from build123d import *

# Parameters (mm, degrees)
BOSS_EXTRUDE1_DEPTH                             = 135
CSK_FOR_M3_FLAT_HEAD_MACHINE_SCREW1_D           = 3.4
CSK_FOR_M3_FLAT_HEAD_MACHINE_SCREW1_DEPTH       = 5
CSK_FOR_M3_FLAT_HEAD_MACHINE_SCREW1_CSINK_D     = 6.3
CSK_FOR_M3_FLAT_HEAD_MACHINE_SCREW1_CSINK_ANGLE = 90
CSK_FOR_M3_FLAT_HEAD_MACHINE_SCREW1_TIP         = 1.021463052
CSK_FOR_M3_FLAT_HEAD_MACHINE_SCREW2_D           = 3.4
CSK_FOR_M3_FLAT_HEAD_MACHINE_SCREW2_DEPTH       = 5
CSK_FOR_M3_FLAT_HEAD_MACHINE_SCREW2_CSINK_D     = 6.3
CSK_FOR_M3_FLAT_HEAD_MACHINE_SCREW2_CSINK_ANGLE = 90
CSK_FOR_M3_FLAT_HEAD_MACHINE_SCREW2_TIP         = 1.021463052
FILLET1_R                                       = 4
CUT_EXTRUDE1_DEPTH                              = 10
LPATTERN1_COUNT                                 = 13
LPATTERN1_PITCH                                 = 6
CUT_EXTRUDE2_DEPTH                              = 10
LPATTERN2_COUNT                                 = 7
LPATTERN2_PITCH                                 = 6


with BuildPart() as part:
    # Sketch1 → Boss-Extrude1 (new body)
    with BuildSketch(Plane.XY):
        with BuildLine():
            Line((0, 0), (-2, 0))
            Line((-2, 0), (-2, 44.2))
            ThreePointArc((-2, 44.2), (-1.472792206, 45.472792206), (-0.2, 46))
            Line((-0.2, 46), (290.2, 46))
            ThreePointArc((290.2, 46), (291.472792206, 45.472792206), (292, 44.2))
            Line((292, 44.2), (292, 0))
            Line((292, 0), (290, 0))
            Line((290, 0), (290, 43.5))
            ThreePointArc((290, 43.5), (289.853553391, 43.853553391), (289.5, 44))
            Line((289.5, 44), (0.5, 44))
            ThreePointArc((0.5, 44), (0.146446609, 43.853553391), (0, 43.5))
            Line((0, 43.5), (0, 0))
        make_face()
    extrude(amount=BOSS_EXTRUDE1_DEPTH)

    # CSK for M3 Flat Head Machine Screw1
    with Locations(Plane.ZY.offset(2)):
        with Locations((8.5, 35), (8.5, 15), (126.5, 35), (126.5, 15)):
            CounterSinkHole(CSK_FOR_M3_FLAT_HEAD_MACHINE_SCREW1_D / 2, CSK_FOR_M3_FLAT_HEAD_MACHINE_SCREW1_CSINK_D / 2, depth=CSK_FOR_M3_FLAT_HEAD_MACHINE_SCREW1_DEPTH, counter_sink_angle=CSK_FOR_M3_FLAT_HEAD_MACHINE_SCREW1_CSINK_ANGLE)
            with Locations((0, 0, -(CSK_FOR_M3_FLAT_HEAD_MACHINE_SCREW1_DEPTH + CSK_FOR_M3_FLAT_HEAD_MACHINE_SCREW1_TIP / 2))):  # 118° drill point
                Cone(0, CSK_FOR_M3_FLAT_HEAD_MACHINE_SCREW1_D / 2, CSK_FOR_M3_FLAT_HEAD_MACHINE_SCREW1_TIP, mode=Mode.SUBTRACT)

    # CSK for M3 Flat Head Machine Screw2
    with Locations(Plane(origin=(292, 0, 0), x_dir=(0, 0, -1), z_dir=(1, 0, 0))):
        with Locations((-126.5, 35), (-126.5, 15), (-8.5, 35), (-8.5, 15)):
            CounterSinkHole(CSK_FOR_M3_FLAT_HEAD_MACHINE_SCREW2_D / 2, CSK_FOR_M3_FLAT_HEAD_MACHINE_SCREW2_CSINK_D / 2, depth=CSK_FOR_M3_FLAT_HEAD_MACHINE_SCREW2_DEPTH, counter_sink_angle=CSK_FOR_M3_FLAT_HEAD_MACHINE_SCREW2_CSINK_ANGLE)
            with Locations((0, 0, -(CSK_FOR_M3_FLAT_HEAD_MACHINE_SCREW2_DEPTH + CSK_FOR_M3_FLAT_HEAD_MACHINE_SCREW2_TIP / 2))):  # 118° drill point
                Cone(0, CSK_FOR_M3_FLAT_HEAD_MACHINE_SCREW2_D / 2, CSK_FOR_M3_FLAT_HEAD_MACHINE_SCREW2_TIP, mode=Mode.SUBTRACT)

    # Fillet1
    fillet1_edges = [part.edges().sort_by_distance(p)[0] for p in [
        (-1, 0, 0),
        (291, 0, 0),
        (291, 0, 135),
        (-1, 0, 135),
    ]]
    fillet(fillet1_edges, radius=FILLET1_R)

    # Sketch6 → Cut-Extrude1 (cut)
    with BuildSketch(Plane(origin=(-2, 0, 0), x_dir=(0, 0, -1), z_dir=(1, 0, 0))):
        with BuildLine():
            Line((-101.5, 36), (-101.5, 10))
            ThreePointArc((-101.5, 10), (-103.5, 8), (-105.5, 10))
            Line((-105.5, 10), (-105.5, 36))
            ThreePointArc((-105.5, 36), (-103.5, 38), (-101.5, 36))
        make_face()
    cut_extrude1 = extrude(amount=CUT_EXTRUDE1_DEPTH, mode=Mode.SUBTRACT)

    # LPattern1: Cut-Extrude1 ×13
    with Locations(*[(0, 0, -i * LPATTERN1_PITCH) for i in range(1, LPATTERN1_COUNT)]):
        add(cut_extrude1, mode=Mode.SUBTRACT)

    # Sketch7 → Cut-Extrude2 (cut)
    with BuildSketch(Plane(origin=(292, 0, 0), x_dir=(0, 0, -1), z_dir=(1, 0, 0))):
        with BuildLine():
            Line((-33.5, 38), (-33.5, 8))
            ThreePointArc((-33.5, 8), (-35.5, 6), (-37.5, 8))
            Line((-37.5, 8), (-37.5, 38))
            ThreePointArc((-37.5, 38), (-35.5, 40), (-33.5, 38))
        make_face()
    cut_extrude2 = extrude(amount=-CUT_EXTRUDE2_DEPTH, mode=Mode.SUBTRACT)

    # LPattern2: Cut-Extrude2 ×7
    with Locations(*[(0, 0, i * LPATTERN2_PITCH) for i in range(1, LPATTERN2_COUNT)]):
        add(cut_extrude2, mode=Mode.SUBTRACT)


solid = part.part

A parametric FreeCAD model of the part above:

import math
import FreeCAD as App
import Part
import Sketcher


def edges_at(feature, points):
    """Names of the edges that pass closest to the given points."""
    edges = feature.Shape.Edges
    near = lambda p: min(range(len(edges)), key=lambda i: edges[i].distToShape(Part.Vertex(*p))[0])
    return sorted({f"Edge{near(p) + 1}" for p in points})

doc = App.newDocument("Part")
body = doc.addObject("PartDesign::Body", "Body")

# Sketch on XY plane
sketch1 = body.newObject("Sketcher::SketchObject", "Sketch")
sketch1.AttachmentSupport = (doc.getObject("XY_Plane"), [""])
sketch1.MapMode = "FlatFace"
sketch1.addGeometry([
    Part.LineSegment(App.Vector(-2, 0, 0), App.Vector(0, 0, 0)),  # 0
    Part.LineSegment(App.Vector(0, 0, 0), App.Vector(0, 43.5, 0)),  # 1
    Part.ArcOfCircle(Part.Circle(App.Vector(0.5, 43.5, 0), App.Vector(0, 0, 1), 0.5), math.radians(90), math.radians(180)),  # 2
    Part.LineSegment(App.Vector(0.5, 44, 0), App.Vector(289.5, 44, 0)),  # 3
    Part.ArcOfCircle(Part.Circle(App.Vector(289.5, 43.5, 0), App.Vector(0, 0, 1), 0.5), math.radians(0), math.radians(90)),  # 4
    Part.LineSegment(App.Vector(290, 43.5, 0), App.Vector(290, 0, 0)),  # 5
    Part.LineSegment(App.Vector(290, 0, 0), App.Vector(292, 0, 0)),  # 6
    Part.LineSegment(App.Vector(292, 0, 0), App.Vector(292, 44.2, 0)),  # 7
    Part.ArcOfCircle(Part.Circle(App.Vector(290.2, 44.2, 0), App.Vector(0, 0, 1), 1.8), math.radians(0), math.radians(90)),  # 8
    Part.LineSegment(App.Vector(290.2, 46, 0), App.Vector(-0.2, 46, 0)),  # 9
    Part.ArcOfCircle(Part.Circle(App.Vector(-0.2, 44.2, 0), App.Vector(0, 0, 1), 1.8), math.radians(90), math.radians(180)),  # 10
    Part.LineSegment(App.Vector(-2, 44.2, 0), App.Vector(-2, 0, 0)),  # 11
], False)
sketch1.addConstraint([
    Sketcher.Constraint("Coincident", 0, 2, 1, 1),
    Sketcher.Constraint("Tangent", 1, 2, 2, 2),
    Sketcher.Constraint("Tangent", 2, 1, 3, 1),
    Sketcher.Constraint("Tangent", 3, 2, 4, 2),
    Sketcher.Constraint("Tangent", 4, 1, 5, 1),
    Sketcher.Constraint("Coincident", 5, 2, 6, 1),
    Sketcher.Constraint("Coincident", 6, 2, 7, 1),
    Sketcher.Constraint("Tangent", 7, 2, 8, 1),
    Sketcher.Constraint("Tangent", 8, 2, 9, 1),
    Sketcher.Constraint("Tangent", 9, 2, 10, 1),
    Sketcher.Constraint("Tangent", 10, 2, 11, 1),
    Sketcher.Constraint("Coincident", 11, 2, 0, 1),
    Sketcher.Constraint("Horizontal", 0),
    Sketcher.Constraint("Vertical", 1),
    Sketcher.Constraint("Horizontal", 3),
    Sketcher.Constraint("Vertical", 5),
    Sketcher.Constraint("Horizontal", 6),
    Sketcher.Constraint("Vertical", 7),
    Sketcher.Constraint("Horizontal", 9),
    Sketcher.Constraint("Vertical", 11),
    Sketcher.Constraint("Coincident", 0, 2, -1, 1),
    Sketcher.Constraint("Equal", 2, 4),
    Sketcher.Constraint("Equal", 8, 10),
    Sketcher.Constraint("PointOnObject", 5, 2, -1),
    Sketcher.Constraint("Equal", 0, 6),
    Sketcher.Constraint("Radius", 2, 0.5),
    Sketcher.Constraint("Radius", 8, 1.8),
    Sketcher.Constraint("DistanceX", 0, 1, 0, 2, 2.0),
    Sketcher.Constraint("DistanceX", 3, 1, 3, 2, 289.0),
    Sketcher.Constraint("DistanceY", 1, 1, 1, 2, 43.5),
    Sketcher.Constraint("DistanceY", 7, 1, 7, 2, 44.2),
])
pad1 = body.newObject("PartDesign::Pad", "Pad")
pad1.Profile = sketch1
pad1.Length = 135

# Sketch on YZ plane
sketch2 = body.newObject("Sketcher::SketchObject", "Sketch001")
sketch2.AttachmentSupport = (doc.getObject("YZ_Plane"), [""])
sketch2.MapMode = "FlatFace"
sketch2.AttachmentOffset = App.Placement(App.Vector(0, 0, -2), App.Rotation())
sketch2.addGeometry([
    Part.Circle(App.Vector(35, 8.5, 0), App.Vector(0, 0, 1), 1.7),
    Part.Circle(App.Vector(15, 8.5, 0), App.Vector(0, 0, 1), 1.7),
    Part.Circle(App.Vector(35, 126.5, 0), App.Vector(0, 0, 1), 1.7),
    Part.Circle(App.Vector(15, 126.5, 0), App.Vector(0, 0, 1), 1.7),
], False)
sketch2.addConstraint([
    Sketcher.Constraint("Equal", 0, 1),
    Sketcher.Constraint("Equal", 1, 2),
    Sketcher.Constraint("Equal", 2, 3),
    Sketcher.Constraint("Horizontal", 0, 3, 1, 3),
    Sketcher.Constraint("Horizontal", 2, 3, 3, 3),
    Sketcher.Constraint("Vertical", 0, 3, 2, 3),
    Sketcher.Constraint("Vertical", 1, 3, 3, 3),
    Sketcher.Constraint("Diameter", 0, 3.4),
    Sketcher.Constraint("DistanceX", -1, 1, 0, 3, 35.0),
    Sketcher.Constraint("DistanceX", -1, 1, 1, 3, 15.0),
    Sketcher.Constraint("DistanceY", 0, 3, 2, 3, 118.0),
    Sketcher.Constraint("DistanceY", -1, 1, 0, 3, 8.5),
])
doc.recompute()
hole = body.newObject("PartDesign::Hole", "Hole")
hole.Profile = sketch2
hole.ThreadType = "None"
hole.Diameter = 3.4
hole.DepthType = "Dimension"
hole.Depth = 5
hole.DrillPoint = "Angled"
hole.DrillPointAngle = 118
hole.HoleCutType = "Countersink"
hole.HoleCutDiameter = 6.3
hole.HoleCutCountersinkAngle = 90
hole.Reversed = True

# Sketch on YZ plane
sketch3 = body.newObject("Sketcher::SketchObject", "Sketch002")
sketch3.AttachmentSupport = (doc.getObject("YZ_Plane"), [""])
sketch3.MapMode = "FlatFace"
sketch3.AttachmentOffset = App.Placement(App.Vector(0, 0, 292), App.Rotation())
sketch3.addGeometry([
    Part.Circle(App.Vector(35, 126.5, 0), App.Vector(0, 0, 1), 1.7),
    Part.Circle(App.Vector(15, 126.5, 0), App.Vector(0, 0, 1), 1.7),
    Part.Circle(App.Vector(35, 8.5, 0), App.Vector(0, 0, 1), 1.7),
    Part.Circle(App.Vector(15, 8.5, 0), App.Vector(0, 0, 1), 1.7),
], False)
sketch3.addConstraint([
    Sketcher.Constraint("Equal", 0, 1),
    Sketcher.Constraint("Equal", 1, 2),
    Sketcher.Constraint("Equal", 2, 3),
    Sketcher.Constraint("Horizontal", 0, 3, 1, 3),
    Sketcher.Constraint("Horizontal", 2, 3, 3, 3),
    Sketcher.Constraint("Vertical", 0, 3, 2, 3),
    Sketcher.Constraint("Vertical", 1, 3, 3, 3),
    Sketcher.Constraint("Diameter", 0, 3.4),
    Sketcher.Constraint("DistanceX", -1, 1, 0, 3, 35.0),
    Sketcher.Constraint("DistanceX", -1, 1, 1, 3, 15.0),
    Sketcher.Constraint("DistanceY", 2, 3, 0, 3, 118.0),
    Sketcher.Constraint("DistanceY", -1, 1, 0, 3, 126.5),
])
doc.recompute()
hole2 = body.newObject("PartDesign::Hole", "Hole001")
hole2.Profile = sketch3
hole2.ThreadType = "None"
hole2.Diameter = 3.4
hole2.DepthType = "Dimension"
hole2.Depth = 5
hole2.DrillPoint = "Angled"
hole2.DrillPointAngle = 118
hole2.HoleCutType = "Countersink"
hole2.HoleCutDiameter = 6.3
hole2.HoleCutCountersinkAngle = 90
doc.recompute()

fillet = body.newObject("PartDesign::Fillet", "Fillet")
fillet.Base = (hole2, edges_at(hole2, [
    (-1, 0, 0),
    (291, 0, 0),
    (291, 0, 135),
    (-1, 0, 135),
]))
fillet.Radius = 4

# Sketch on YZ plane
sketch4 = body.newObject("Sketcher::SketchObject", "Sketch003")
sketch4.AttachmentSupport = (doc.getObject("YZ_Plane"), [""])
sketch4.MapMode = "FlatFace"
sketch4.AttachmentOffset = App.Placement(App.Vector(0, 0, -2), App.Rotation())
sketch4.addGeometry([
    Part.LineSegment(App.Vector(10, 101.5, 0), App.Vector(36, 101.5, 0)),
    Part.ArcOfCircle(Part.Circle(App.Vector(36, 103.5, 0), App.Vector(0, 0, 1), 2), math.radians(-90), math.radians(90)),
    Part.LineSegment(App.Vector(36, 105.5, 0), App.Vector(10, 105.5, 0)),
    Part.ArcOfCircle(Part.Circle(App.Vector(10, 103.5, 0), App.Vector(0, 0, 1), 2), math.radians(90), math.radians(270)),
], False)
sketch4.addConstraint([
    Sketcher.Constraint("Tangent", 0, 2, 1, 1),
    Sketcher.Constraint("Tangent", 1, 2, 2, 1),
    Sketcher.Constraint("Tangent", 2, 2, 3, 1),
    Sketcher.Constraint("Tangent", 3, 2, 0, 1),
    Sketcher.Constraint("Horizontal", 0),
    Sketcher.Constraint("Horizontal", 2),
    Sketcher.Constraint("Radius", 1, 2.0),
    Sketcher.Constraint("DistanceX", 0, 1, 0, 2, 26.0),
    Sketcher.Constraint("DistanceX", -1, 1, 1, 3, 36.0),
    Sketcher.Constraint("DistanceY", -1, 1, 1, 3, 103.5),
])
pocket1 = body.newObject("PartDesign::Pocket", "Pocket")
pocket1.Profile = sketch4
pocket1.Length = 10
pocket1.Reversed = True
doc.recompute()

linearpattern = body.newObject("PartDesign::LinearPattern", "LinearPattern")
linearpattern.Originals = [pocket1]
linearpattern.Direction = (doc.getObject("Z_Axis"), [""])
linearpattern.Mode = "offset"
linearpattern.Offset = 6
linearpattern.Occurrences = 13
linearpattern.Reversed = True
body.Tip = linearpattern

# Sketch on YZ plane
sketch5 = body.newObject("Sketcher::SketchObject", "Sketch004")
sketch5.AttachmentSupport = (doc.getObject("YZ_Plane"), [""])
sketch5.MapMode = "FlatFace"
sketch5.AttachmentOffset = App.Placement(App.Vector(0, 0, 292), App.Rotation())
sketch5.addGeometry([
    Part.LineSegment(App.Vector(8, 33.5, 0), App.Vector(38, 33.5, 0)),
    Part.ArcOfCircle(Part.Circle(App.Vector(38, 35.5, 0), App.Vector(0, 0, 1), 2), math.radians(-90), math.radians(90)),
    Part.LineSegment(App.Vector(38, 37.5, 0), App.Vector(8, 37.5, 0)),
    Part.ArcOfCircle(Part.Circle(App.Vector(8, 35.5, 0), App.Vector(0, 0, 1), 2), math.radians(90), math.radians(270)),
], False)
sketch5.addConstraint([
    Sketcher.Constraint("Tangent", 0, 2, 1, 1),
    Sketcher.Constraint("Tangent", 1, 2, 2, 1),
    Sketcher.Constraint("Tangent", 2, 2, 3, 1),
    Sketcher.Constraint("Tangent", 3, 2, 0, 1),
    Sketcher.Constraint("Horizontal", 0),
    Sketcher.Constraint("Horizontal", 2),
    Sketcher.Constraint("Radius", 1, 2.0),
    Sketcher.Constraint("DistanceX", 0, 1, 0, 2, 30.0),
    Sketcher.Constraint("DistanceX", -1, 1, 1, 3, 38.0),
    Sketcher.Constraint("DistanceY", -1, 1, 1, 3, 35.5),
])
pocket2 = body.newObject("PartDesign::Pocket", "Pocket001")
pocket2.Profile = sketch5
pocket2.Length = 10
doc.recompute()

linearpattern2 = body.newObject("PartDesign::LinearPattern", "LinearPattern001")
linearpattern2.Originals = [pocket2]
linearpattern2.Direction = (doc.getObject("Z_Axis"), [""])
linearpattern2.Mode = "offset"
linearpattern2.Offset = 6
linearpattern2.Occurrences = 7
body.Tip = linearpattern2

doc.recompute()
